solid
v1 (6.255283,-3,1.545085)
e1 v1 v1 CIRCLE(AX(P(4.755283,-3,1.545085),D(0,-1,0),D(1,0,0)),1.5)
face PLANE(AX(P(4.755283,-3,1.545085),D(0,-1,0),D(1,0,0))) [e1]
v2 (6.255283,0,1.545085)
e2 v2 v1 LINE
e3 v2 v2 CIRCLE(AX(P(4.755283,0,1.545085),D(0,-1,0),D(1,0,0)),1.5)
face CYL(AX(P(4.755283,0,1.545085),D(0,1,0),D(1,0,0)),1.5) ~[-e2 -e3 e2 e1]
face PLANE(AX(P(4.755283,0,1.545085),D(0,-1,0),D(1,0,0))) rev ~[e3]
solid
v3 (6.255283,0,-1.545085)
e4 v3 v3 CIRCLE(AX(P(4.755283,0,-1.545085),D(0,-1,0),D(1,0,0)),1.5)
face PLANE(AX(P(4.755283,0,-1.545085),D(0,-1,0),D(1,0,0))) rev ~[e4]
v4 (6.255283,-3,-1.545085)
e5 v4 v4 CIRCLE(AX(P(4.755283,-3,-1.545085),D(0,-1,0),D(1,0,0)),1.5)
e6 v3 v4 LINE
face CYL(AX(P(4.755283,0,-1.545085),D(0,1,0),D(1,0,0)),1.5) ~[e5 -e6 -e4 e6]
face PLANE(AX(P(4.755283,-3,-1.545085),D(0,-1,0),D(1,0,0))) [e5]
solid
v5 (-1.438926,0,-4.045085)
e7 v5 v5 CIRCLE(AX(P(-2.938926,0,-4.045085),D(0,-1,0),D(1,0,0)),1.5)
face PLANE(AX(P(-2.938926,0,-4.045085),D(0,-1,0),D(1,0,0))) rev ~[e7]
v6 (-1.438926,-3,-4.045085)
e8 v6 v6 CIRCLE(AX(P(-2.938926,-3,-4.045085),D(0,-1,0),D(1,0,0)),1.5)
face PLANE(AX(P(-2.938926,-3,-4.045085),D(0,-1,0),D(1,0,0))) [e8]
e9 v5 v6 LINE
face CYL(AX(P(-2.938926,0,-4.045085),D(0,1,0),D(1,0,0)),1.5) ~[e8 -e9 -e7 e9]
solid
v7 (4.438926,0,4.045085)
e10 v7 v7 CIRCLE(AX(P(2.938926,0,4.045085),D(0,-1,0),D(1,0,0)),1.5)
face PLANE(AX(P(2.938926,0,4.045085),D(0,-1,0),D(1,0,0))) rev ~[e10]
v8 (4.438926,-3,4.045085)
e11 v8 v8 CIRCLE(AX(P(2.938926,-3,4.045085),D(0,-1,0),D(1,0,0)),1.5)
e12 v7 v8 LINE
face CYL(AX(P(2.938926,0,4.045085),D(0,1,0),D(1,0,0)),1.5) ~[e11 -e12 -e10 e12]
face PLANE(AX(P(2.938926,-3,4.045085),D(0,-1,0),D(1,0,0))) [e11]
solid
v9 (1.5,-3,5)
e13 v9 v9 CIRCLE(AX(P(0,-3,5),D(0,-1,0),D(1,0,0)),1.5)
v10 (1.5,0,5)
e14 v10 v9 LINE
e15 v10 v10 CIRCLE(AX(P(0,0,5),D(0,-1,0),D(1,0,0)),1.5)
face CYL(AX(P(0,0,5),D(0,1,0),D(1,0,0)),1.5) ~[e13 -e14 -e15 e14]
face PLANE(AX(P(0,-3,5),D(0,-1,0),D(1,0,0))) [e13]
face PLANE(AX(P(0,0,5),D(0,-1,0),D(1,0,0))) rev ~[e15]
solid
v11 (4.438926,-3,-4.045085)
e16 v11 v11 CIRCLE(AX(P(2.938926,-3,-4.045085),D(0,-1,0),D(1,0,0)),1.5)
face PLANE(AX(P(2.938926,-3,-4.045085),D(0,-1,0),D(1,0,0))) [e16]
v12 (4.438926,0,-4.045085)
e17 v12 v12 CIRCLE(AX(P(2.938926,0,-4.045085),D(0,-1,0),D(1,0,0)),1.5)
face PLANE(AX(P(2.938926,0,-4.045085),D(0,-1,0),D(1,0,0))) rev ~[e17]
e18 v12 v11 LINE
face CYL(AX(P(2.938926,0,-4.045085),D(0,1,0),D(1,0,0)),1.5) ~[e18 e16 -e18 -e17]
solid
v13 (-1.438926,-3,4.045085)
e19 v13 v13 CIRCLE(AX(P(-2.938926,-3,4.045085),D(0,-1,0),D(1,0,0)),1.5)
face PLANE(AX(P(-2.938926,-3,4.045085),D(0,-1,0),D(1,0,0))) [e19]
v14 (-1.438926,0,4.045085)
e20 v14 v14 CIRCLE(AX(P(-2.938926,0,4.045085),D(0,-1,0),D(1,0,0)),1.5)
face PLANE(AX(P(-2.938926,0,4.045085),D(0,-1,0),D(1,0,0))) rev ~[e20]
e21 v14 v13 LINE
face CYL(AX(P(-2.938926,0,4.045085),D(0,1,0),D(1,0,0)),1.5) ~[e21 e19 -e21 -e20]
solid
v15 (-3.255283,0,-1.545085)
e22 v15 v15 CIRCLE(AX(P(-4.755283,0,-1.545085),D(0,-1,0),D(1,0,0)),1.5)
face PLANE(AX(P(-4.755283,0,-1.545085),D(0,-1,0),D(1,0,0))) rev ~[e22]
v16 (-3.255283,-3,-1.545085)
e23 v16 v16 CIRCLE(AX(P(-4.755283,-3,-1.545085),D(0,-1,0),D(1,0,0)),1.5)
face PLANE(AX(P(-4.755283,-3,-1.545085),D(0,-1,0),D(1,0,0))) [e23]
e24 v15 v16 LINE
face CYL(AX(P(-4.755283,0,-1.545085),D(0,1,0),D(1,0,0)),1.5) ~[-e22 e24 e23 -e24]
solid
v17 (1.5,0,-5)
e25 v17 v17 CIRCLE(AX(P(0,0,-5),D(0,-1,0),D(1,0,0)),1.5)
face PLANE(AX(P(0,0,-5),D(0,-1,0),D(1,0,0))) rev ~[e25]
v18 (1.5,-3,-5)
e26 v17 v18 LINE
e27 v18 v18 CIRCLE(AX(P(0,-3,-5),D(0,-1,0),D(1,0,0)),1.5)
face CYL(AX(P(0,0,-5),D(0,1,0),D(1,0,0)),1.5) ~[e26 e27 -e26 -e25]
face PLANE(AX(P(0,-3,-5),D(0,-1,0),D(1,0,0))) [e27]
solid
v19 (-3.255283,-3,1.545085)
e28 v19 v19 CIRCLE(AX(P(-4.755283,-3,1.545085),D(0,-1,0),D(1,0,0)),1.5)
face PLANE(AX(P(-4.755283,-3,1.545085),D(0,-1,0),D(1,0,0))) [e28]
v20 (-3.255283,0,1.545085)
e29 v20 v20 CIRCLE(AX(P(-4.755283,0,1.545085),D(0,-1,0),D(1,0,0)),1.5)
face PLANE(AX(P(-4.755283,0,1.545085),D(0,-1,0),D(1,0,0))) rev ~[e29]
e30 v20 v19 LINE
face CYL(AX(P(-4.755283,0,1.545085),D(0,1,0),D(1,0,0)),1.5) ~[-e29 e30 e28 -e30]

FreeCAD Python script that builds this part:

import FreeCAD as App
import Part
import Sketcher

V = App.Vector
Q = App.Units.Quantity

doc = App.newDocument("Part")
body = doc.addObject("PartDesign::Body", "Body")
body.AllowCompound = True

sketch1 = body.newObject("Sketcher::SketchObject", "Sketch")
sketch1.AttachmentSupport = (doc.getObject("XZ_Plane"), [""])
sketch1.MapMode = "FlatFace"
sketch1.addGeometry([
    Part.Circle(V(0, -5, 0), V(0, 0, 1), 1.5),
    Part.Circle(V(2.9, -4, 0), V(0, 0, 1), 1.5),
    Part.Circle(V(4.8, -1.5, 0), V(0, 0, 1), 1.5),
    Part.Circle(V(4.8, 1.5, 0), V(0, 0, 1), 1.5),
    Part.Circle(V(2.9, 4, 0), V(0, 0, 1), 1.5),
    Part.Circle(V(0, 5, 0), V(0, 0, 1), 1.5),
    Part.Circle(V(-2.9, 4, 0), V(0, 0, 1), 1.5),
    Part.Circle(V(-4.8, 1.5, 0), V(0, 0, 1), 1.5),
    Part.Circle(V(-4.8, -1.5, 0), V(0, 0, 1), 1.5),
    Part.Circle(V(-2.9, -4, 0), V(0, 0, 1), 1.5),
], False)
sketch1.addConstraint([
    Sketcher.Constraint("Equal", 0, 1),
    Sketcher.Constraint("Equal", 1, 2),
    Sketcher.Constraint("Equal", 2, 3),
    Sketcher.Constraint("Equal", 3, 4),
    Sketcher.Constraint("Equal", 4, 5),
    Sketcher.Constraint("Equal", 5, 6),
    Sketcher.Constraint("Equal", 6, 7),
    Sketcher.Constraint("Equal", 7, 8),
    Sketcher.Constraint("Equal", 8, 9),
    Sketcher.Constraint("Symmetric", 0, 3, 5, 3, -1, 1),
    Sketcher.Constraint("Symmetric", 1, 3, 6, 3, -1, 1),
    Sketcher.Constraint("Symmetric", 2, 3, 7, 3, -1, 1),
    Sketcher.Constraint("Symmetric", 3, 3, 8, 3, -1, 1),
    Sketcher.Constraint("Symmetric", 4, 3, 9, 3, -1, 1),
    Sketcher.Constraint("Symmetric", 4, 3, 6, 3, -2),
    Sketcher.Constraint("Symmetric", 3, 3, 7, 3, -2),
    Sketcher.Constraint("PointOnObject", 0, 3, -2),
    Sketcher.Constraint("Diameter", 0, Q("3 mm")),
    Sketcher.Constraint("DistanceY", 0, 3, -1, 1, Q("5 mm")),
    Sketcher.Constraint("DistanceY", 1, 3, 2, 3, Q("2.5 mm")),
    Sketcher.Constraint("DistanceY", 2, 3, 3, 3, Q("3.09017 mm")),
    Sketcher.Constraint("DistanceX", 6, 3, 3, 3, Q("7.694209 mm")),
    Sketcher.Constraint("DistanceX", -1, 1, 1, 3, Q("2.938926 mm")),
])
pad1 = body.newObject("PartDesign::Pad", "Pad")
pad1.Profile = sketch1
pad1.Length = 3

doc.recompute()
